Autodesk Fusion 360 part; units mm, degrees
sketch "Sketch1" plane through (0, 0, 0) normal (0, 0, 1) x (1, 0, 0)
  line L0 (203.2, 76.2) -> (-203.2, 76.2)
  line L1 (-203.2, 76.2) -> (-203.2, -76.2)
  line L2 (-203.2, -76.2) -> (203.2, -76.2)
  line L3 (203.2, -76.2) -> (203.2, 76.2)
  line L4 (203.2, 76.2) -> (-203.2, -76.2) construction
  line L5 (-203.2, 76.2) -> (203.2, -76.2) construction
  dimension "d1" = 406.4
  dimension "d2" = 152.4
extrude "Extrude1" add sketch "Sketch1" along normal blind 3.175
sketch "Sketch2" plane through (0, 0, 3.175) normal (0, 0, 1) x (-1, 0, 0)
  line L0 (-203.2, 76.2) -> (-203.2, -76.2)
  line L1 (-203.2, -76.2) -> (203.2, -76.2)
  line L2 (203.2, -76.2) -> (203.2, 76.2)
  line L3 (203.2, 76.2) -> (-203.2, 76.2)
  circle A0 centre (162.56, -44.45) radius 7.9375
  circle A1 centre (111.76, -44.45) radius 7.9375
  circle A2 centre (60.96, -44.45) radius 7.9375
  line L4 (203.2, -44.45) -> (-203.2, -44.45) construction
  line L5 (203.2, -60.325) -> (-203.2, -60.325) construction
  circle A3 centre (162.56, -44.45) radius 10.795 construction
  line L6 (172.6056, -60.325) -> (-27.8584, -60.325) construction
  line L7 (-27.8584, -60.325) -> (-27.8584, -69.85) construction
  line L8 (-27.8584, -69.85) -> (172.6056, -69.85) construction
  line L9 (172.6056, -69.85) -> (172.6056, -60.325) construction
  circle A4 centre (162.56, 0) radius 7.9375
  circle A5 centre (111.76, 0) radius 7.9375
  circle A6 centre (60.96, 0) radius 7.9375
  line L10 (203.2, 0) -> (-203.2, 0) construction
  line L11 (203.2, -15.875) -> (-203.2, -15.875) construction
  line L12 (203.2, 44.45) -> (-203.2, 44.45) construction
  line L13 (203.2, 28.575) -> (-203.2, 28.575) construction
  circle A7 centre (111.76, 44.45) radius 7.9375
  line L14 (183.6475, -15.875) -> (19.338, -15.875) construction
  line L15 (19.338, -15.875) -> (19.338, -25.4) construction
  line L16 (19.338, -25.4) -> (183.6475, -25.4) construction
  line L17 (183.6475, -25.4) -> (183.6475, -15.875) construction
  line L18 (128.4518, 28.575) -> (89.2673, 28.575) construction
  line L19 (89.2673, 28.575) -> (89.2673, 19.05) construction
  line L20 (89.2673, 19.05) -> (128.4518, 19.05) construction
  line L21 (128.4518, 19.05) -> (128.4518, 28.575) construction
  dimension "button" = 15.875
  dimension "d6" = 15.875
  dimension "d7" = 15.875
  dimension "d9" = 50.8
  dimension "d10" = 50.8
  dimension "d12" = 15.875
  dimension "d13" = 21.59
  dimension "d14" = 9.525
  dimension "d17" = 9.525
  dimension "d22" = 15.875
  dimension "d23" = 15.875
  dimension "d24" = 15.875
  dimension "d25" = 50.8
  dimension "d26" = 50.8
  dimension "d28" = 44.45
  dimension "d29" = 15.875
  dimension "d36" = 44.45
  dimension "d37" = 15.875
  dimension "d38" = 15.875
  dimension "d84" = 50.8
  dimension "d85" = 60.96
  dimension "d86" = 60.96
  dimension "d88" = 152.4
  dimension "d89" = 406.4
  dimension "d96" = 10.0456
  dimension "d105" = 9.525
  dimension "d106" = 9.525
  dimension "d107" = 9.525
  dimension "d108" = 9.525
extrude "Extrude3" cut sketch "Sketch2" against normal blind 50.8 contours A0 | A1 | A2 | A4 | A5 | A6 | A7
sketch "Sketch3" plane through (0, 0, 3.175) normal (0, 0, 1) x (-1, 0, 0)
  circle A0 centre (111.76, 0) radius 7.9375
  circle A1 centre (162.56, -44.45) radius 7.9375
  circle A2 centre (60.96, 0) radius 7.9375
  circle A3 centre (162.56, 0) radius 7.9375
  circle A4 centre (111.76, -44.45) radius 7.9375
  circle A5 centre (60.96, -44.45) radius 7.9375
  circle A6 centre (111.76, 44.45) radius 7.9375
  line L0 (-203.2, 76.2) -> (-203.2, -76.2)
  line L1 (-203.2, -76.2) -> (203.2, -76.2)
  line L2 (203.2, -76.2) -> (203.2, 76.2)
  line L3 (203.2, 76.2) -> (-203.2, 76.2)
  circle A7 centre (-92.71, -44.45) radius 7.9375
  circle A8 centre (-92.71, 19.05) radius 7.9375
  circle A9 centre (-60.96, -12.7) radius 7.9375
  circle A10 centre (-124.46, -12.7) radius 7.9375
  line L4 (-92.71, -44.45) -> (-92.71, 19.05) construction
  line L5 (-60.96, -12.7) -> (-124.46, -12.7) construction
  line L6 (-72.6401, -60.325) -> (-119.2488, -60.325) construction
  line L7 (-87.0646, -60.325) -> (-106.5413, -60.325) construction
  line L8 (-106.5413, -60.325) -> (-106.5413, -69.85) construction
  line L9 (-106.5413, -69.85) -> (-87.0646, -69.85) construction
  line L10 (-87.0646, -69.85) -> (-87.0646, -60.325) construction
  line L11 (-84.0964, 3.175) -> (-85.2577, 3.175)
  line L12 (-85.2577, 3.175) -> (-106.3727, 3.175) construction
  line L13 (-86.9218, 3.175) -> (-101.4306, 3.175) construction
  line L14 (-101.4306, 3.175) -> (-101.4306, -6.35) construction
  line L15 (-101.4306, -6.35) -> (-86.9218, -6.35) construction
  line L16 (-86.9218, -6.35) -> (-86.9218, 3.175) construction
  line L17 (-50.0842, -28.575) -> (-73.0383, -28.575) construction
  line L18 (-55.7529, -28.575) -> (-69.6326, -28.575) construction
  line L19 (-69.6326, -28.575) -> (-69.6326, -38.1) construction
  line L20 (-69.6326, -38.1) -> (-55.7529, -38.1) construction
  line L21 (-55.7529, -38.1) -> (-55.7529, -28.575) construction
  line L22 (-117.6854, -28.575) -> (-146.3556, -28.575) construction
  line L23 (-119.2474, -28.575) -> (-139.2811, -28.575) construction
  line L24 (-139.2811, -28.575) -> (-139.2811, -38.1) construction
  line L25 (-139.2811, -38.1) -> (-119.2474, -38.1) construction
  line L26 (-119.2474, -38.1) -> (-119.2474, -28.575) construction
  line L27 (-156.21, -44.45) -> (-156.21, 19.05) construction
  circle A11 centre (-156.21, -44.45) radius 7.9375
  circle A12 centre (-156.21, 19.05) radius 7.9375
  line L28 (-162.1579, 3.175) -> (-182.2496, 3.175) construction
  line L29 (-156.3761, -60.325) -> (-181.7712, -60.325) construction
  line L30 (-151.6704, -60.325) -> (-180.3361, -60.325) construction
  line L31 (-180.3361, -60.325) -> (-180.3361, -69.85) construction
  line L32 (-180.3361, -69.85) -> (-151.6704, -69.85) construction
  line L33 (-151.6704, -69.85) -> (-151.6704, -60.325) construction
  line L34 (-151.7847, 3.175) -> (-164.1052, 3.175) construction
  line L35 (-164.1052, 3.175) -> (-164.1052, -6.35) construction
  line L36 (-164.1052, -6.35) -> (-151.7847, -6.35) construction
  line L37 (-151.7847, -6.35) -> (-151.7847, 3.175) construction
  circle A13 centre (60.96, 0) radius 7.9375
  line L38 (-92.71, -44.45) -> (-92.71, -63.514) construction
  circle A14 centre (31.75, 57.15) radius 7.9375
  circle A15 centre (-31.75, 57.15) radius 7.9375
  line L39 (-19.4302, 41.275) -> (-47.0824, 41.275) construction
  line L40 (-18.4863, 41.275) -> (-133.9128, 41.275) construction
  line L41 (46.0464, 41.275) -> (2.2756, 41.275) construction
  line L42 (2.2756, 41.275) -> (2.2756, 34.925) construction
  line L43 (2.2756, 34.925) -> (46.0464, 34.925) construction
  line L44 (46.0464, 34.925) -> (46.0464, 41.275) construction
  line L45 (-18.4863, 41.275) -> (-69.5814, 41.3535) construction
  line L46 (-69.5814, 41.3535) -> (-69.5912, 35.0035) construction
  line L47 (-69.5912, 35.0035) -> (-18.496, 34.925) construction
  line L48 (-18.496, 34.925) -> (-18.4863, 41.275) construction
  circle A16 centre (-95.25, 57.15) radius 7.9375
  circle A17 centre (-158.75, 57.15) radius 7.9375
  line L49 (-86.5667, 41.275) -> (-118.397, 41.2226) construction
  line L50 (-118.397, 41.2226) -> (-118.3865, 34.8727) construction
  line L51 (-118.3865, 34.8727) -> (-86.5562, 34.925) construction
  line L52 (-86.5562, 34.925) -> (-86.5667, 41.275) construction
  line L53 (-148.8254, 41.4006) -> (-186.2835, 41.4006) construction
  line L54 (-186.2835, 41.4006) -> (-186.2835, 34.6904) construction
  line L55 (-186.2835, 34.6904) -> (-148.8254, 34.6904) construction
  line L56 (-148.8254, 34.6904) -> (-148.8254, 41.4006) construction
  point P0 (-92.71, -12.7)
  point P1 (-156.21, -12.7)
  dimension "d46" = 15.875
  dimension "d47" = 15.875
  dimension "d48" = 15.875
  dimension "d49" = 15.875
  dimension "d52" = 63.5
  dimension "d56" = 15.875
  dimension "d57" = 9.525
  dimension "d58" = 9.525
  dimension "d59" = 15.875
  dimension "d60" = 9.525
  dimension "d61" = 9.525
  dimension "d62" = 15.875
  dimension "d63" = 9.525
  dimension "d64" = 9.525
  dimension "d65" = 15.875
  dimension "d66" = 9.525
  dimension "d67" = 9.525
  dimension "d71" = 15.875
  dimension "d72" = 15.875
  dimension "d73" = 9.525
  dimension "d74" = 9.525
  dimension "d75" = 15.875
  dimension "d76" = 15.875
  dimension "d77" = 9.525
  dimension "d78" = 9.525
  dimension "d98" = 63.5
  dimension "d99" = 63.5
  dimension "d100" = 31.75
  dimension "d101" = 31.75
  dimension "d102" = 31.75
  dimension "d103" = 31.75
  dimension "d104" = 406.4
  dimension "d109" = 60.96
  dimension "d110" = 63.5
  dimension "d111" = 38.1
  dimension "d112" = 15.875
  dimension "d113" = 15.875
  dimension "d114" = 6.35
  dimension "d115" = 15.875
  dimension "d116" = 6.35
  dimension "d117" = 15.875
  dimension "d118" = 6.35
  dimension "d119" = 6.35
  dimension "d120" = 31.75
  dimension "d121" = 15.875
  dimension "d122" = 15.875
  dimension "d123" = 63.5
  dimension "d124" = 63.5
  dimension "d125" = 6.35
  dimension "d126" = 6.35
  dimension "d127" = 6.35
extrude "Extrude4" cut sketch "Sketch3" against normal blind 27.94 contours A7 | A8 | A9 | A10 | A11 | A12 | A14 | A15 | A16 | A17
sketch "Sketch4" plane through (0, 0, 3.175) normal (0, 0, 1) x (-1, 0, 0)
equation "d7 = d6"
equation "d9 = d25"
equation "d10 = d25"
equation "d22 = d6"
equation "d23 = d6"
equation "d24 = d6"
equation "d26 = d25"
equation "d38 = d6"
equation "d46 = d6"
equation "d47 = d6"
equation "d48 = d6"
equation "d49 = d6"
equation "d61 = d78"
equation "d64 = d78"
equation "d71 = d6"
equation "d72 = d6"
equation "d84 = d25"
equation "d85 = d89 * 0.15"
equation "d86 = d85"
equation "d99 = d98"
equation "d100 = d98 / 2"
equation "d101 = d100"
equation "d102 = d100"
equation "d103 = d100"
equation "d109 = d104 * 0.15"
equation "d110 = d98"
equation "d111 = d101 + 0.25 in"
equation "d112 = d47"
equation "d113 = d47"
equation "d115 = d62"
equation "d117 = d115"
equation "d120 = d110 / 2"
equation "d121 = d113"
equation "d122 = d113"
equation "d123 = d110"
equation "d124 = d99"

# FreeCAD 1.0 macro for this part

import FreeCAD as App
import Part
import Sketcher

V = App.Vector
Q = App.Units.Quantity

doc = App.newDocument("Part")
body = doc.addObject("PartDesign::Body", "Body")

sketch1 = body.newObject("Sketcher::SketchObject", "Sketch")
sketch1.AttachmentSupport = (doc.getObject("XY_Plane"), [""])
sketch1.MapMode = "FlatFace"
sketch1.addGeometry([
    Part.LineSegment(V(203, -76, 0), V(203, 76, 0)),
    Part.LineSegment(V(203, 76, 0), V(-203, 76, 0)),
    Part.LineSegment(V(-203, 76, 0), V(-203, -76, 0)),
    Part.LineSegment(V(-203, -76, 0), V(203, -76, 0)),
], False)
sketch1.addConstraint([
    Sketcher.Constraint("Coincident", 0, 2, 1, 1),
    Sketcher.Constraint("Coincident", 1, 2, 2, 1),
    Sketcher.Constraint("Coincident", 2, 2, 3, 1),
    Sketcher.Constraint("Coincident", 3, 2, 0, 1),
    Sketcher.Constraint("Vertical", 0),
    Sketcher.Constraint("Horizontal", 1),
    Sketcher.Constraint("Vertical", 2),
    Sketcher.Constraint("Horizontal", 3),
    Sketcher.Constraint("Symmetric", 0, 2, 2, 2, -1, 1),
    Sketcher.Constraint("DistanceX", 1, 2, 1, 1, Q("16 in")),
    Sketcher.Constraint("DistanceY", 0, 1, 0, 2, Q("6 in")),
])
pad1 = body.newObject("PartDesign::Pad", "Pad")
pad1.Profile = sketch1
pad1.Length = Q("0.125 in")

sketch2 = body.newObject("Sketcher::SketchObject", "Sketch001")
sketch2.AttachmentSupport = (doc.getObject("XY_Plane"), [""])
sketch2.MapMode = "FlatFace"
sketch2.AttachmentOffset = App.Placement(V(0, 0, 0.125 * 25.4), App.Rotation())
sketch2.addGeometry([
    Part.Circle(V(-163, 44, 0), V(0, 0, 1), 8),
    Part.Circle(V(-112, 44, 0), V(0, 0, 1), 8),
    Part.Circle(V(-61, 44, 0), V(0, 0, 1), 8),
    Part.Circle(V(-163, 0, 0), V(0, 0, 1), 8),
    Part.Circle(V(-112, 0, 0), V(0, 0, 1), 8),
    Part.Circle(V(-61, 0, 0), V(0, 0, 1), 8),
    Part.Circle(V(-112, -44, 0), V(0, 0, 1), 8),
], False)
sketch2.addConstraint([
    Sketcher.Constraint("Equal", 0, 1),
    Sketcher.Constraint("Equal", 1, 2),
    Sketcher.Constraint("Equal", 2, 3),
    Sketcher.Constraint("Equal", 3, 4),
    Sketcher.Constraint("Equal", 4, 5),
    Sketcher.Constraint("Equal", 5, 6),
    Sketcher.Constraint("Symmetric", 1, 3, 6, 3, -1),
    Sketcher.Constraint("PointOnObject", 3, 3, -1),
    Sketcher.Constraint("PointOnObject", 4, 3, -1),
    Sketcher.Constraint("PointOnObject", 5, 3, -1),
    Sketcher.Constraint("Horizontal", 0, 3, 1, 3),
    Sketcher.Constraint("Horizontal", 1, 3, 2, 3),
    Sketcher.Constraint("Vertical", 0, 3, 3, 3),
    Sketcher.Constraint("Vertical", 1, 3, 4, 3),
    Sketcher.Constraint("Vertical", 2, 3, 5, 3),
    Sketcher.Constraint("Diameter", 0, Q("0.625 in")),
    Sketcher.Constraint("DistanceX", 0, 3, 1, 3, Q("2 in")),
    Sketcher.Constraint("DistanceX", 1, 3, 2, 3, Q("2 in")),
    Sketcher.Constraint("DistanceX", 2, 3, -1, 1, Q("2.4 in")),
    Sketcher.Constraint("DistanceY", -1, 1, 0, 3, Q("1.75 in")),
])
pocket1 = body.newObject("PartDesign::Pocket", "Pocket")
pocket1.Profile = sketch2
pocket1.Length = Q("2 in")

sketch3 = body.newObject("Sketcher::SketchObject", "Sketch002")
sketch3.AttachmentSupport = (doc.getObject("XY_Plane"), [""])
sketch3.MapMode = "FlatFace"
sketch3.AttachmentOffset = App.Placement(V(0, 0, 0.125 * 25.4), App.Rotation())
sketch3.addGeometry([
    Part.Circle(V(93, 44, 0), V(0, 0, 1), 8),
    Part.Circle(V(93, -19, 0), V(0, 0, 1), 8),
    Part.Circle(V(61, 13, 0), V(0, 0, 1), 8),
    Part.Circle(V(124, 13, 0), V(0, 0, 1), 8),
    Part.Circle(V(156, 44, 0), V(0, 0, 1), 8),
    Part.Circle(V(156, -19, 0), V(0, 0, 1), 8),
    Part.Circle(V(-32, -57, 0), V(0, 0, 1), 8),
    Part.Circle(V(32, -57, 0), V(0, 0, 1), 8),
    Part.Circle(V(95, -57, 0), V(0, 0, 1), 8),
    Part.Circle(V(159, -57, 0), V(0, 0, 1), 8),
], False)
sketch3.addConstraint([
    Sketcher.Constraint("Equal", 0, 1),
    Sketcher.Constraint("Equal", 1, 2),
    Sketcher.Constraint("Equal", 2, 3),
    Sketcher.Constraint("Equal", 3, 4),
    Sketcher.Constraint("Equal", 4, 5),
    Sketcher.Constraint("Equal", 5, 6),
    Sketcher.Constraint("Equal", 6, 7),
    Sketcher.Constraint("Equal", 7, 8),
    Sketcher.Constraint("Equal", 8, 9),
    Sketcher.Constraint("Symmetric", 6, 3, 7, 3, -2),
    Sketcher.Constraint("Horizontal", 2, 3, 3, 3),
    Sketcher.Constraint("Horizontal", 0, 3, 4, 3),
    Sketcher.Constraint("Horizontal", 1, 3, 5, 3),
    Sketcher.Constraint("Horizontal", 7, 3, 8, 3),
    Sketcher.Constraint("Horizontal", 8, 3, 9, 3),
    Sketcher.Constraint("Vertical", 0, 3, 1, 3),
    Sketcher.Constraint("Vertical", 4, 3, 5, 3),
    Sketcher.Constraint("Diameter", 0, Q("0.625 in")),
    Sketcher.Constraint("DistanceX", -1, 1, 2, 3, Q("2.4 in")),
    Sketcher.Constraint("DistanceY", 1, 3, 0, 3, Q("2.5 in")),
    Sketcher.Constraint("DistanceX", 2, 3, 3, 3, Q("2.5 in")),
    Sketcher.Constraint("DistanceX", 0, 3, 4, 3, Q("2.5 in")),
    Sketcher.Constraint("DistanceY", 6, 3, 1, 3, Q("1.5 in")),
    Sketcher.Constraint("DistanceX", 6, 3, 7, 3, Q("2.5 in")),
    Sketcher.Constraint("DistanceX", 7, 3, 1, 3, Q("2.4 in")),
    Sketcher.Constraint("DistanceX", 7, 3, 8, 3, Q("2.5 in")),
    Sketcher.Constraint("DistanceX", 8, 3, 9, 3, Q("2.5 in")),
    Sketcher.Constraint("DistanceY", 1, 3, 2, 3, Q("1.25 in")),
    Sketcher.Constraint("DistanceY", -1, 1, 2, 3, Q("0.5 in")),
])
pocket2 = body.newObject("PartDesign::Pocket", "Pocket001")
pocket2.Profile = sketch3
pocket2.Length = Q("1.1 in")

doc.recompute()
